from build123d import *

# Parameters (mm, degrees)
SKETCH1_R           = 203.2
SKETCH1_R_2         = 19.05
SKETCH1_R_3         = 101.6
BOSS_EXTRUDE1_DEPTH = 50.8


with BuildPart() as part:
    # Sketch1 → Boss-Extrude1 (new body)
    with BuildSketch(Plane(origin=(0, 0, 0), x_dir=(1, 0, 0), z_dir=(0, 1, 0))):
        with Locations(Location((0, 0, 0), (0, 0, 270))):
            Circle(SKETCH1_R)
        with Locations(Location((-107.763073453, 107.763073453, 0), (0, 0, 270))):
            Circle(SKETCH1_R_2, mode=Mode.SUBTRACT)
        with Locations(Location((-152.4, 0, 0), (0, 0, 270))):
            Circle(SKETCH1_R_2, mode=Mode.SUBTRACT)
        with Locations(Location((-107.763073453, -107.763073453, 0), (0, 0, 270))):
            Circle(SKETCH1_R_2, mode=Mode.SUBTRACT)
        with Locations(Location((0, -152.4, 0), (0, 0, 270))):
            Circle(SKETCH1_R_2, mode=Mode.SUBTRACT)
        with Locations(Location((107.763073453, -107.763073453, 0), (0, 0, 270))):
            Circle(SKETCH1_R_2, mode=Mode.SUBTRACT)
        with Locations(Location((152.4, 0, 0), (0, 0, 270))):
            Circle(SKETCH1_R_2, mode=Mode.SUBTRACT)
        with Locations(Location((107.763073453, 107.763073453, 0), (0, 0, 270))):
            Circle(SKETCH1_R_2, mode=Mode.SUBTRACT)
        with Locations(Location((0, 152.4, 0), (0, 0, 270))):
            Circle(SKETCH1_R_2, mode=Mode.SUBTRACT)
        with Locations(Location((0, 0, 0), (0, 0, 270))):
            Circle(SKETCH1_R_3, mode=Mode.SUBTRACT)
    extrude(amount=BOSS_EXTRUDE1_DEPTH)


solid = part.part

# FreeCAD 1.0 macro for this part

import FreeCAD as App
import Part
import Sketcher
from FreeCAD import Vector
Q = App.Units.Quantity

doc = App.newDocument("Part")
body = doc.addObject("PartDesign::Body", "Body")

sketch1 = body.newObject("Sketcher::SketchObject", "Sketch")
sketch1.AttachmentSupport = (doc.getObject("XZ_Plane"), [""])
sketch1.MapMode = "FlatFace"
sketch1.addGeometry([
    Part.Circle(Vector(0, 0, 0), Vector(0, 0, 1), 203.2),
    Part.Circle(Vector(-107.763073, -107.763073, 0), Vector(0, 0, 1), 19.05),
    Part.Circle(Vector(0, -152.4, 0), Vector(0, 0, 1), 19.05),
    Part.Circle(Vector(-152.4, 0, 0), Vector(0, 0, 1), 19.05),
    Part.Circle(Vector(-107.763073, 107.763073, 0), Vector(0, 0, 1), 19.05),
    Part.Circle(Vector(107.763073, -107.763073, 0), Vector(0, 0, 1), 19.05),
    Part.Circle(Vector(152.4, 0, 0), Vector(0, 0, 1), 19.05),
    Part.Circle(Vector(0, 0, 0), Vector(0, 0, 1), 101.6),
    Part.Circle(Vector(0, 152.4, 0), Vector(0, 0, 1), 19.05),
    Part.Circle(Vector(107.763073, 107.763073, 0), Vector(0, 0, 1), 19.05),
], False)
sketch1.addConstraint([
    Sketcher.Constraint("Coincident", 0, 3, -1, 1),
    Sketcher.Constraint("Coincident", 7, 3, -1, 1),
    Sketcher.Constraint("Equal", 1, 2),
    Sketcher.Constraint("Equal", 2, 3),
    Sketcher.Constraint("Equal", 3, 4),
    Sketcher.Constraint("Equal", 4, 5),
    Sketcher.Constraint("Equal", 5, 6),
    Sketcher.Constraint("Equal", 6, 8),
    Sketcher.Constraint("Equal", 8, 9),
    Sketcher.Constraint("Symmetric", 4, 3, 5, 3, -1, 1),
    Sketcher.Constraint("Symmetric", 3, 3, 6, 3, -1, 1),
    Sketcher.Constraint("Symmetric", 2, 3, 8, 3, -1, 1),
    Sketcher.Constraint("Symmetric", 1, 3, 9, 3, -1, 1),
    Sketcher.Constraint("Symmetric", 1, 3, 5, 3, -2),
    Sketcher.Constraint("PointOnObject", 2, 3, -2),
    Sketcher.Constraint("PointOnObject", 3, 3, -1),
    Sketcher.Constraint("Diameter", 0, Q("16 in")),
    Sketcher.Constraint("Diameter", 7, Q("8 in")),
    Sketcher.Constraint("Diameter", 1, Q("1.5 in")),
    Sketcher.Constraint("DistanceY", 2, 3, -1, 1, Q("6 in")),
    Sketcher.Constraint("DistanceX", 3, 3, -1, 1, Q("6 in")),
    Sketcher.Constraint("DistanceX", 1, 3, -1, 1, Q("107.763073 mm")),
    Sketcher.Constraint("DistanceY", 1, 3, -1, 1, Q("107.763073 mm")),
])
pad1 = body.newObject("PartDesign::Pad", "Pad")
pad1.Profile = sketch1
pad1.Length = Q("2 in")
pad1.Reversed = True

doc.recompute()
